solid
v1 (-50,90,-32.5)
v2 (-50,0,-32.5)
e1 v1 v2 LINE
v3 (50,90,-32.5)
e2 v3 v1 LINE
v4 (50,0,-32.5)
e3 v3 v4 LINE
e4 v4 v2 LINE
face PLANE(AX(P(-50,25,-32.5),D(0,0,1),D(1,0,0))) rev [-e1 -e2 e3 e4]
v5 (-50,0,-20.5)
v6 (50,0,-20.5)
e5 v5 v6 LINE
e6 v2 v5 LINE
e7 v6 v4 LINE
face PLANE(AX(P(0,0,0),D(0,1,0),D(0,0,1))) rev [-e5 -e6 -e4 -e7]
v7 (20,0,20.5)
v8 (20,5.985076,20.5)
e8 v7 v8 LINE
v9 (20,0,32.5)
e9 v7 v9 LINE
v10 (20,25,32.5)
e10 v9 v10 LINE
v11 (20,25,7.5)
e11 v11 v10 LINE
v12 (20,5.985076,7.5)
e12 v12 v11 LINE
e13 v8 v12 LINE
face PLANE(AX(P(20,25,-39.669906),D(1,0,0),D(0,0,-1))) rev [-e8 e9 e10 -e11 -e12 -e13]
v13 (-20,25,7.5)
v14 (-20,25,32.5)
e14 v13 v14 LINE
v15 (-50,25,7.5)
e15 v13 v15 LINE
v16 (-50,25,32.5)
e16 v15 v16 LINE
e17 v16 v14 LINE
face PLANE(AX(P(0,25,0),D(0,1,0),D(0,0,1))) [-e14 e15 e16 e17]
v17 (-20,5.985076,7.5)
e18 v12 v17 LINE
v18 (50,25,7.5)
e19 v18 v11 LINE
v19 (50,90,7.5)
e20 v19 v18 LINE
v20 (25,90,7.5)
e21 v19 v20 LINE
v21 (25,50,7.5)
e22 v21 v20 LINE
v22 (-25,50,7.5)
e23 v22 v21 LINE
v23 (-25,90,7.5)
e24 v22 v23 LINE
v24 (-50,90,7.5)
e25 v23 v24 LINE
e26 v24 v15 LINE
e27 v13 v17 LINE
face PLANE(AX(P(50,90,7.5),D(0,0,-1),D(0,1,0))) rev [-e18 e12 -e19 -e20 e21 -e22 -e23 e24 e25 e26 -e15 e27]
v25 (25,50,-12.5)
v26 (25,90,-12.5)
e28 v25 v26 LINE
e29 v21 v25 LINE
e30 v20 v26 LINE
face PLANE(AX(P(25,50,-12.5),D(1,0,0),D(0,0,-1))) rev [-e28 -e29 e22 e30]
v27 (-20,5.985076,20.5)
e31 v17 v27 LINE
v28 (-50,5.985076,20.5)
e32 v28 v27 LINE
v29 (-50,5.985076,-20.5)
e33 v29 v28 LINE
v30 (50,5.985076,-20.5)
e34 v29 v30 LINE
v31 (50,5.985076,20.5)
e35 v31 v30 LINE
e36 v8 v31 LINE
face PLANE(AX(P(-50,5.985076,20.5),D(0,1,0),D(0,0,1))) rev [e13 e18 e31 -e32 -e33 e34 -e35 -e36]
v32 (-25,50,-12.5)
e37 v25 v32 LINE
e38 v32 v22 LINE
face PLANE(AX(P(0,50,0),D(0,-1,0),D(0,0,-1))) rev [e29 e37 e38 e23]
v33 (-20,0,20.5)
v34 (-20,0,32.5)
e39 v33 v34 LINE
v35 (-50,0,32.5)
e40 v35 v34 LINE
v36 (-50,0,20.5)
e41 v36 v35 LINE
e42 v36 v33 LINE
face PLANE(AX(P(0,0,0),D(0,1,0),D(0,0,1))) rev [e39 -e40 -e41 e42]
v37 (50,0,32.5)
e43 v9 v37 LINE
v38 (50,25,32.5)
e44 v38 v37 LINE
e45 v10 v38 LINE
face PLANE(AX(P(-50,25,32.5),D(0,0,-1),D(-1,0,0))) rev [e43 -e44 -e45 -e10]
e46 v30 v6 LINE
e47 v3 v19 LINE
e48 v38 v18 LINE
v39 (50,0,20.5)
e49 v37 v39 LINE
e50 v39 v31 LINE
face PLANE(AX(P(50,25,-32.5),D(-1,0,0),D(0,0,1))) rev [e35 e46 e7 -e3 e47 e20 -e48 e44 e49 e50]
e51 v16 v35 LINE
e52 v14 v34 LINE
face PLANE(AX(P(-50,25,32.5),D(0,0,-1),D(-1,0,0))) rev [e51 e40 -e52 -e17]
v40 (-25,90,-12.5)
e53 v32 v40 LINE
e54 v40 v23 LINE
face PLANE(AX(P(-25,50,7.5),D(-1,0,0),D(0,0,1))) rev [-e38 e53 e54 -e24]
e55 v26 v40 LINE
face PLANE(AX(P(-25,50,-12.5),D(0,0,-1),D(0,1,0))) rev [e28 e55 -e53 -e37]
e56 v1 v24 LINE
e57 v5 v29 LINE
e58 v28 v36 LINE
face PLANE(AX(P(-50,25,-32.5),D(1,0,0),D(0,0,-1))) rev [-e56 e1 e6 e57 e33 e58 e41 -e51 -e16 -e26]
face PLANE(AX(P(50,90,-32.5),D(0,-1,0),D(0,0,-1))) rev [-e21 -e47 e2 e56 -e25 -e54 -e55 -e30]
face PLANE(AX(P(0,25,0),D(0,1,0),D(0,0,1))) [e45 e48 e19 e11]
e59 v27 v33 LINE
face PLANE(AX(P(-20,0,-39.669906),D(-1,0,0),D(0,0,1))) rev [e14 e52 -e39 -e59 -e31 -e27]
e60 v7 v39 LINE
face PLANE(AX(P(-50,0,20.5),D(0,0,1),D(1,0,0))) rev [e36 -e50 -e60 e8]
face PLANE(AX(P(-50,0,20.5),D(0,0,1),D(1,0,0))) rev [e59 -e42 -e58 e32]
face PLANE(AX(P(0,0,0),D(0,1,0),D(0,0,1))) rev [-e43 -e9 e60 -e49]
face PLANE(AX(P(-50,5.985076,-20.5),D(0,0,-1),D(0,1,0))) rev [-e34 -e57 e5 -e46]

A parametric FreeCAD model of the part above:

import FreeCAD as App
import Part
import Sketcher

V = App.Vector

doc = App.newDocument("Part")
body = doc.addObject("PartDesign::Body", "Body")

sketch1 = body.newObject("Sketcher::SketchObject", "Sketch")
sketch1.AttachmentSupport = (doc.getObject("XZ_Plane"), [""])
sketch1.MapMode = "FlatFace"
sketch1.addGeometry([
    Part.LineSegment(V(-50, -32, 0), V(-50, 32, 0)),
    Part.LineSegment(V(-50, 32, 0), V(50, 32, 0)),
    Part.LineSegment(V(50, 32, 0), V(50, -32, 0)),
    Part.LineSegment(V(50, -32, 0), V(-50, -32, 0)),
], False)
sketch1.addConstraint([
    Sketcher.Constraint("Coincident", 0, 2, 1, 1),
    Sketcher.Constraint("Coincident", 1, 2, 2, 1),
    Sketcher.Constraint("Coincident", 2, 2, 3, 1),
    Sketcher.Constraint("Coincident", 3, 2, 0, 1),
    Sketcher.Constraint("Vertical", 0),
    Sketcher.Constraint("Horizontal", 1),
    Sketcher.Constraint("Vertical", 2),
    Sketcher.Constraint("Horizontal", 3),
    Sketcher.Constraint("Symmetric", 0, 2, 2, 2, -1, 1),
    Sketcher.Constraint("DistanceX", 1, 1, 1, 2, 100.0),
    Sketcher.Constraint("DistanceY", 0, 1, 0, 2, 65.0),
])
pad1 = body.newObject("PartDesign::Pad", "Pad")
pad1.Profile = sketch1
pad1.Length = 25
pad1.Reversed = True

sketch2 = body.newObject("Sketcher::SketchObject", "Sketch001")
sketch2.AttachmentSupport = (doc.getObject("YZ_Plane"), [""])
sketch2.MapMode = "FlatFace"
sketch2.addGeometry([
    Part.LineSegment(V(90, 8, 0), V(25, 8, 0)),
    Part.LineSegment(V(25, 8, 0), V(25, -32, 0)),
    Part.LineSegment(V(25, -32, 0), V(90, -32, 0)),
    Part.LineSegment(V(90, -32, 0), V(90, 8, 0)),
], False)
sketch2.addConstraint([
    Sketcher.Constraint("Coincident", 0, 2, 1, 1),
    Sketcher.Constraint("Coincident", 1, 2, 2, 1),
    Sketcher.Constraint("Coincident", 2, 2, 3, 1),
    Sketcher.Constraint("Coincident", 3, 2, 0, 1),
    Sketcher.Constraint("Horizontal", 0),
    Sketcher.Constraint("Vertical", 1),
    Sketcher.Constraint("Horizontal", 2),
    Sketcher.Constraint("Vertical", 3),
    Sketcher.Constraint("DistanceX", 0, 2, 0, 1, 65.0),
    Sketcher.Constraint("DistanceY", 1, 2, 1, 1, 40.0),
    Sketcher.Constraint("DistanceX", -1, 1, 0, 2, 25.0),
    Sketcher.Constraint("DistanceY", -1, 1, 0, 2, 7.5),
])
pad2 = body.newObject("PartDesign::Pad", "Pad001")
pad2.Profile = sketch2
pad2.Length = 100
pad2.Midplane = True

sketch3 = body.newObject("Sketcher::SketchObject", "Sketch002")
sketch3.AttachmentSupport = (doc.getObject("XZ_Plane"), [""])
sketch3.MapMode = "FlatFace"
sketch3.AttachmentOffset = App.Placement(V(0, 0, -90), App.Rotation())
sketch3.addGeometry([
    Part.LineSegment(V(-25, -12, 0), V(-25, 8, 0)),
    Part.LineSegment(V(-25, 8, 0), V(25, 8, 0)),
    Part.LineSegment(V(25, 8, 0), V(25, -12, 0)),
    Part.LineSegment(V(25, -12, 0), V(-25, -12, 0)),
], False)
sketch3.addConstraint([
    Sketcher.Constraint("Coincident", 0, 2, 1, 1),
    Sketcher.Constraint("Coincident", 1, 2, 2, 1),
    Sketcher.Constraint("Coincident", 2, 2, 3, 1),
    Sketcher.Constraint("Coincident", 3, 2, 0, 1),
    Sketcher.Constraint("Vertical", 0),
    Sketcher.Constraint("Horizontal", 1),
    Sketcher.Constraint("Vertical", 2),
    Sketcher.Constraint("Horizontal", 3),
    Sketcher.Constraint("DistanceX", 1, 1, 1, 2, 50.0),
    Sketcher.Constraint("DistanceY", 0, 1, 0, 2, 20.0),
    Sketcher.Constraint("DistanceX", 0, 2, -1, 1, 25.0),
    Sketcher.Constraint("DistanceY", -1, 1, 0, 2, 7.5),
])
pocket1 = body.newObject("PartDesign::Pocket", "Pocket")
pocket1.Profile = sketch3
pocket1.Length = 40
pocket1.Reversed = True

sketch4 = body.newObject("Sketcher::SketchObject", "Sketch003")
sketch4.AttachmentSupport = (doc.getObject("YZ_Plane"), [""])
sketch4.MapMode = "FlatFace"
sketch4.AttachmentOffset = App.Placement(V(0, 0, 50), App.Rotation())
sketch4.addGeometry([
    Part.LineSegment(V(6, 20, 0), V(0, 20, 0)),
    Part.LineSegment(V(0, 20, 0), V(0, -20, 0)),
    Part.LineSegment(V(0, -20, 0), V(6, -20, 0)),
    Part.LineSegment(V(6, -20, 0), V(6, 20, 0)),
], False)
sketch4.addConstraint([
    Sketcher.Constraint("Coincident", 0, 2, 1, 1),
    Sketcher.Constraint("Coincident", 1, 2, 2, 1),
    Sketcher.Constraint("Coincident", 2, 2, 3, 1),
    Sketcher.Constraint("Coincident", 3, 2, 0, 1),
    Sketcher.Constraint("Horizontal", 0),
    Sketcher.Constraint("Vertical", 1),
    Sketcher.Constraint("Horizontal", 2),
    Sketcher.Constraint("Vertical", 3),
    Sketcher.Constraint("Symmetric", 0, 2, 1, 2, -1, 1),
    Sketcher.Constraint("DistanceY", 1, 2, 1, 1, 41.0),
    Sketcher.Constraint("DistanceX", 0, 2, 0, 1, 5.985076),
])
pocket2 = body.newObject("PartDesign::Pocket", "Pocket001")
pocket2.Profile = sketch4
pocket2.Type = "ThroughAll"
pocket2.Midplane = True

sketch5 = body.newObject("Sketcher::SketchObject", "Sketch004")
sketch5.AttachmentSupport = (doc.getObject("XY_Plane"), [""])
sketch5.MapMode = "FlatFace"
sketch5.AttachmentOffset = App.Placement(V(0, 0, 7.5), App.Rotation())
sketch5.addGeometry([
    Part.LineSegment(V(-20, 25, 0), V(-20, 0, 0)),
    Part.LineSegment(V(-20, 0, 0), V(20, 0, 0)),
    Part.LineSegment(V(20, 0, 0), V(20, 25, 0)),
    Part.LineSegment(V(20, 25, 0), V(-20, 25, 0)),
], False)
sketch5.addConstraint([
    Sketcher.Constraint("Coincident", 0, 2, 1, 1),
    Sketcher.Constraint("Coincident", 1, 2, 2, 1),
    Sketcher.Constraint("Coincident", 2, 2, 3, 1),
    Sketcher.Constraint("Coincident", 3, 2, 0, 1),
    Sketcher.Constraint("Vertical", 0),
    Sketcher.Constraint("Horizontal", 1),
    Sketcher.Constraint("Vertical", 2),
    Sketcher.Constraint("Horizontal", 3),
    Sketcher.Constraint("Symmetric", 0, 2, 1, 2, -1, 1),
    Sketcher.Constraint("DistanceX", 1, 1, 1, 2, 40.0),
    Sketcher.Constraint("DistanceY", 0, 2, 0, 1, 25.0),
])
pocket3 = body.newObject("PartDesign::Pocket", "Pocket002")
pocket3.Profile = sketch5
pocket3.Length = 25
pocket3.Reversed = True

doc.recompute()
